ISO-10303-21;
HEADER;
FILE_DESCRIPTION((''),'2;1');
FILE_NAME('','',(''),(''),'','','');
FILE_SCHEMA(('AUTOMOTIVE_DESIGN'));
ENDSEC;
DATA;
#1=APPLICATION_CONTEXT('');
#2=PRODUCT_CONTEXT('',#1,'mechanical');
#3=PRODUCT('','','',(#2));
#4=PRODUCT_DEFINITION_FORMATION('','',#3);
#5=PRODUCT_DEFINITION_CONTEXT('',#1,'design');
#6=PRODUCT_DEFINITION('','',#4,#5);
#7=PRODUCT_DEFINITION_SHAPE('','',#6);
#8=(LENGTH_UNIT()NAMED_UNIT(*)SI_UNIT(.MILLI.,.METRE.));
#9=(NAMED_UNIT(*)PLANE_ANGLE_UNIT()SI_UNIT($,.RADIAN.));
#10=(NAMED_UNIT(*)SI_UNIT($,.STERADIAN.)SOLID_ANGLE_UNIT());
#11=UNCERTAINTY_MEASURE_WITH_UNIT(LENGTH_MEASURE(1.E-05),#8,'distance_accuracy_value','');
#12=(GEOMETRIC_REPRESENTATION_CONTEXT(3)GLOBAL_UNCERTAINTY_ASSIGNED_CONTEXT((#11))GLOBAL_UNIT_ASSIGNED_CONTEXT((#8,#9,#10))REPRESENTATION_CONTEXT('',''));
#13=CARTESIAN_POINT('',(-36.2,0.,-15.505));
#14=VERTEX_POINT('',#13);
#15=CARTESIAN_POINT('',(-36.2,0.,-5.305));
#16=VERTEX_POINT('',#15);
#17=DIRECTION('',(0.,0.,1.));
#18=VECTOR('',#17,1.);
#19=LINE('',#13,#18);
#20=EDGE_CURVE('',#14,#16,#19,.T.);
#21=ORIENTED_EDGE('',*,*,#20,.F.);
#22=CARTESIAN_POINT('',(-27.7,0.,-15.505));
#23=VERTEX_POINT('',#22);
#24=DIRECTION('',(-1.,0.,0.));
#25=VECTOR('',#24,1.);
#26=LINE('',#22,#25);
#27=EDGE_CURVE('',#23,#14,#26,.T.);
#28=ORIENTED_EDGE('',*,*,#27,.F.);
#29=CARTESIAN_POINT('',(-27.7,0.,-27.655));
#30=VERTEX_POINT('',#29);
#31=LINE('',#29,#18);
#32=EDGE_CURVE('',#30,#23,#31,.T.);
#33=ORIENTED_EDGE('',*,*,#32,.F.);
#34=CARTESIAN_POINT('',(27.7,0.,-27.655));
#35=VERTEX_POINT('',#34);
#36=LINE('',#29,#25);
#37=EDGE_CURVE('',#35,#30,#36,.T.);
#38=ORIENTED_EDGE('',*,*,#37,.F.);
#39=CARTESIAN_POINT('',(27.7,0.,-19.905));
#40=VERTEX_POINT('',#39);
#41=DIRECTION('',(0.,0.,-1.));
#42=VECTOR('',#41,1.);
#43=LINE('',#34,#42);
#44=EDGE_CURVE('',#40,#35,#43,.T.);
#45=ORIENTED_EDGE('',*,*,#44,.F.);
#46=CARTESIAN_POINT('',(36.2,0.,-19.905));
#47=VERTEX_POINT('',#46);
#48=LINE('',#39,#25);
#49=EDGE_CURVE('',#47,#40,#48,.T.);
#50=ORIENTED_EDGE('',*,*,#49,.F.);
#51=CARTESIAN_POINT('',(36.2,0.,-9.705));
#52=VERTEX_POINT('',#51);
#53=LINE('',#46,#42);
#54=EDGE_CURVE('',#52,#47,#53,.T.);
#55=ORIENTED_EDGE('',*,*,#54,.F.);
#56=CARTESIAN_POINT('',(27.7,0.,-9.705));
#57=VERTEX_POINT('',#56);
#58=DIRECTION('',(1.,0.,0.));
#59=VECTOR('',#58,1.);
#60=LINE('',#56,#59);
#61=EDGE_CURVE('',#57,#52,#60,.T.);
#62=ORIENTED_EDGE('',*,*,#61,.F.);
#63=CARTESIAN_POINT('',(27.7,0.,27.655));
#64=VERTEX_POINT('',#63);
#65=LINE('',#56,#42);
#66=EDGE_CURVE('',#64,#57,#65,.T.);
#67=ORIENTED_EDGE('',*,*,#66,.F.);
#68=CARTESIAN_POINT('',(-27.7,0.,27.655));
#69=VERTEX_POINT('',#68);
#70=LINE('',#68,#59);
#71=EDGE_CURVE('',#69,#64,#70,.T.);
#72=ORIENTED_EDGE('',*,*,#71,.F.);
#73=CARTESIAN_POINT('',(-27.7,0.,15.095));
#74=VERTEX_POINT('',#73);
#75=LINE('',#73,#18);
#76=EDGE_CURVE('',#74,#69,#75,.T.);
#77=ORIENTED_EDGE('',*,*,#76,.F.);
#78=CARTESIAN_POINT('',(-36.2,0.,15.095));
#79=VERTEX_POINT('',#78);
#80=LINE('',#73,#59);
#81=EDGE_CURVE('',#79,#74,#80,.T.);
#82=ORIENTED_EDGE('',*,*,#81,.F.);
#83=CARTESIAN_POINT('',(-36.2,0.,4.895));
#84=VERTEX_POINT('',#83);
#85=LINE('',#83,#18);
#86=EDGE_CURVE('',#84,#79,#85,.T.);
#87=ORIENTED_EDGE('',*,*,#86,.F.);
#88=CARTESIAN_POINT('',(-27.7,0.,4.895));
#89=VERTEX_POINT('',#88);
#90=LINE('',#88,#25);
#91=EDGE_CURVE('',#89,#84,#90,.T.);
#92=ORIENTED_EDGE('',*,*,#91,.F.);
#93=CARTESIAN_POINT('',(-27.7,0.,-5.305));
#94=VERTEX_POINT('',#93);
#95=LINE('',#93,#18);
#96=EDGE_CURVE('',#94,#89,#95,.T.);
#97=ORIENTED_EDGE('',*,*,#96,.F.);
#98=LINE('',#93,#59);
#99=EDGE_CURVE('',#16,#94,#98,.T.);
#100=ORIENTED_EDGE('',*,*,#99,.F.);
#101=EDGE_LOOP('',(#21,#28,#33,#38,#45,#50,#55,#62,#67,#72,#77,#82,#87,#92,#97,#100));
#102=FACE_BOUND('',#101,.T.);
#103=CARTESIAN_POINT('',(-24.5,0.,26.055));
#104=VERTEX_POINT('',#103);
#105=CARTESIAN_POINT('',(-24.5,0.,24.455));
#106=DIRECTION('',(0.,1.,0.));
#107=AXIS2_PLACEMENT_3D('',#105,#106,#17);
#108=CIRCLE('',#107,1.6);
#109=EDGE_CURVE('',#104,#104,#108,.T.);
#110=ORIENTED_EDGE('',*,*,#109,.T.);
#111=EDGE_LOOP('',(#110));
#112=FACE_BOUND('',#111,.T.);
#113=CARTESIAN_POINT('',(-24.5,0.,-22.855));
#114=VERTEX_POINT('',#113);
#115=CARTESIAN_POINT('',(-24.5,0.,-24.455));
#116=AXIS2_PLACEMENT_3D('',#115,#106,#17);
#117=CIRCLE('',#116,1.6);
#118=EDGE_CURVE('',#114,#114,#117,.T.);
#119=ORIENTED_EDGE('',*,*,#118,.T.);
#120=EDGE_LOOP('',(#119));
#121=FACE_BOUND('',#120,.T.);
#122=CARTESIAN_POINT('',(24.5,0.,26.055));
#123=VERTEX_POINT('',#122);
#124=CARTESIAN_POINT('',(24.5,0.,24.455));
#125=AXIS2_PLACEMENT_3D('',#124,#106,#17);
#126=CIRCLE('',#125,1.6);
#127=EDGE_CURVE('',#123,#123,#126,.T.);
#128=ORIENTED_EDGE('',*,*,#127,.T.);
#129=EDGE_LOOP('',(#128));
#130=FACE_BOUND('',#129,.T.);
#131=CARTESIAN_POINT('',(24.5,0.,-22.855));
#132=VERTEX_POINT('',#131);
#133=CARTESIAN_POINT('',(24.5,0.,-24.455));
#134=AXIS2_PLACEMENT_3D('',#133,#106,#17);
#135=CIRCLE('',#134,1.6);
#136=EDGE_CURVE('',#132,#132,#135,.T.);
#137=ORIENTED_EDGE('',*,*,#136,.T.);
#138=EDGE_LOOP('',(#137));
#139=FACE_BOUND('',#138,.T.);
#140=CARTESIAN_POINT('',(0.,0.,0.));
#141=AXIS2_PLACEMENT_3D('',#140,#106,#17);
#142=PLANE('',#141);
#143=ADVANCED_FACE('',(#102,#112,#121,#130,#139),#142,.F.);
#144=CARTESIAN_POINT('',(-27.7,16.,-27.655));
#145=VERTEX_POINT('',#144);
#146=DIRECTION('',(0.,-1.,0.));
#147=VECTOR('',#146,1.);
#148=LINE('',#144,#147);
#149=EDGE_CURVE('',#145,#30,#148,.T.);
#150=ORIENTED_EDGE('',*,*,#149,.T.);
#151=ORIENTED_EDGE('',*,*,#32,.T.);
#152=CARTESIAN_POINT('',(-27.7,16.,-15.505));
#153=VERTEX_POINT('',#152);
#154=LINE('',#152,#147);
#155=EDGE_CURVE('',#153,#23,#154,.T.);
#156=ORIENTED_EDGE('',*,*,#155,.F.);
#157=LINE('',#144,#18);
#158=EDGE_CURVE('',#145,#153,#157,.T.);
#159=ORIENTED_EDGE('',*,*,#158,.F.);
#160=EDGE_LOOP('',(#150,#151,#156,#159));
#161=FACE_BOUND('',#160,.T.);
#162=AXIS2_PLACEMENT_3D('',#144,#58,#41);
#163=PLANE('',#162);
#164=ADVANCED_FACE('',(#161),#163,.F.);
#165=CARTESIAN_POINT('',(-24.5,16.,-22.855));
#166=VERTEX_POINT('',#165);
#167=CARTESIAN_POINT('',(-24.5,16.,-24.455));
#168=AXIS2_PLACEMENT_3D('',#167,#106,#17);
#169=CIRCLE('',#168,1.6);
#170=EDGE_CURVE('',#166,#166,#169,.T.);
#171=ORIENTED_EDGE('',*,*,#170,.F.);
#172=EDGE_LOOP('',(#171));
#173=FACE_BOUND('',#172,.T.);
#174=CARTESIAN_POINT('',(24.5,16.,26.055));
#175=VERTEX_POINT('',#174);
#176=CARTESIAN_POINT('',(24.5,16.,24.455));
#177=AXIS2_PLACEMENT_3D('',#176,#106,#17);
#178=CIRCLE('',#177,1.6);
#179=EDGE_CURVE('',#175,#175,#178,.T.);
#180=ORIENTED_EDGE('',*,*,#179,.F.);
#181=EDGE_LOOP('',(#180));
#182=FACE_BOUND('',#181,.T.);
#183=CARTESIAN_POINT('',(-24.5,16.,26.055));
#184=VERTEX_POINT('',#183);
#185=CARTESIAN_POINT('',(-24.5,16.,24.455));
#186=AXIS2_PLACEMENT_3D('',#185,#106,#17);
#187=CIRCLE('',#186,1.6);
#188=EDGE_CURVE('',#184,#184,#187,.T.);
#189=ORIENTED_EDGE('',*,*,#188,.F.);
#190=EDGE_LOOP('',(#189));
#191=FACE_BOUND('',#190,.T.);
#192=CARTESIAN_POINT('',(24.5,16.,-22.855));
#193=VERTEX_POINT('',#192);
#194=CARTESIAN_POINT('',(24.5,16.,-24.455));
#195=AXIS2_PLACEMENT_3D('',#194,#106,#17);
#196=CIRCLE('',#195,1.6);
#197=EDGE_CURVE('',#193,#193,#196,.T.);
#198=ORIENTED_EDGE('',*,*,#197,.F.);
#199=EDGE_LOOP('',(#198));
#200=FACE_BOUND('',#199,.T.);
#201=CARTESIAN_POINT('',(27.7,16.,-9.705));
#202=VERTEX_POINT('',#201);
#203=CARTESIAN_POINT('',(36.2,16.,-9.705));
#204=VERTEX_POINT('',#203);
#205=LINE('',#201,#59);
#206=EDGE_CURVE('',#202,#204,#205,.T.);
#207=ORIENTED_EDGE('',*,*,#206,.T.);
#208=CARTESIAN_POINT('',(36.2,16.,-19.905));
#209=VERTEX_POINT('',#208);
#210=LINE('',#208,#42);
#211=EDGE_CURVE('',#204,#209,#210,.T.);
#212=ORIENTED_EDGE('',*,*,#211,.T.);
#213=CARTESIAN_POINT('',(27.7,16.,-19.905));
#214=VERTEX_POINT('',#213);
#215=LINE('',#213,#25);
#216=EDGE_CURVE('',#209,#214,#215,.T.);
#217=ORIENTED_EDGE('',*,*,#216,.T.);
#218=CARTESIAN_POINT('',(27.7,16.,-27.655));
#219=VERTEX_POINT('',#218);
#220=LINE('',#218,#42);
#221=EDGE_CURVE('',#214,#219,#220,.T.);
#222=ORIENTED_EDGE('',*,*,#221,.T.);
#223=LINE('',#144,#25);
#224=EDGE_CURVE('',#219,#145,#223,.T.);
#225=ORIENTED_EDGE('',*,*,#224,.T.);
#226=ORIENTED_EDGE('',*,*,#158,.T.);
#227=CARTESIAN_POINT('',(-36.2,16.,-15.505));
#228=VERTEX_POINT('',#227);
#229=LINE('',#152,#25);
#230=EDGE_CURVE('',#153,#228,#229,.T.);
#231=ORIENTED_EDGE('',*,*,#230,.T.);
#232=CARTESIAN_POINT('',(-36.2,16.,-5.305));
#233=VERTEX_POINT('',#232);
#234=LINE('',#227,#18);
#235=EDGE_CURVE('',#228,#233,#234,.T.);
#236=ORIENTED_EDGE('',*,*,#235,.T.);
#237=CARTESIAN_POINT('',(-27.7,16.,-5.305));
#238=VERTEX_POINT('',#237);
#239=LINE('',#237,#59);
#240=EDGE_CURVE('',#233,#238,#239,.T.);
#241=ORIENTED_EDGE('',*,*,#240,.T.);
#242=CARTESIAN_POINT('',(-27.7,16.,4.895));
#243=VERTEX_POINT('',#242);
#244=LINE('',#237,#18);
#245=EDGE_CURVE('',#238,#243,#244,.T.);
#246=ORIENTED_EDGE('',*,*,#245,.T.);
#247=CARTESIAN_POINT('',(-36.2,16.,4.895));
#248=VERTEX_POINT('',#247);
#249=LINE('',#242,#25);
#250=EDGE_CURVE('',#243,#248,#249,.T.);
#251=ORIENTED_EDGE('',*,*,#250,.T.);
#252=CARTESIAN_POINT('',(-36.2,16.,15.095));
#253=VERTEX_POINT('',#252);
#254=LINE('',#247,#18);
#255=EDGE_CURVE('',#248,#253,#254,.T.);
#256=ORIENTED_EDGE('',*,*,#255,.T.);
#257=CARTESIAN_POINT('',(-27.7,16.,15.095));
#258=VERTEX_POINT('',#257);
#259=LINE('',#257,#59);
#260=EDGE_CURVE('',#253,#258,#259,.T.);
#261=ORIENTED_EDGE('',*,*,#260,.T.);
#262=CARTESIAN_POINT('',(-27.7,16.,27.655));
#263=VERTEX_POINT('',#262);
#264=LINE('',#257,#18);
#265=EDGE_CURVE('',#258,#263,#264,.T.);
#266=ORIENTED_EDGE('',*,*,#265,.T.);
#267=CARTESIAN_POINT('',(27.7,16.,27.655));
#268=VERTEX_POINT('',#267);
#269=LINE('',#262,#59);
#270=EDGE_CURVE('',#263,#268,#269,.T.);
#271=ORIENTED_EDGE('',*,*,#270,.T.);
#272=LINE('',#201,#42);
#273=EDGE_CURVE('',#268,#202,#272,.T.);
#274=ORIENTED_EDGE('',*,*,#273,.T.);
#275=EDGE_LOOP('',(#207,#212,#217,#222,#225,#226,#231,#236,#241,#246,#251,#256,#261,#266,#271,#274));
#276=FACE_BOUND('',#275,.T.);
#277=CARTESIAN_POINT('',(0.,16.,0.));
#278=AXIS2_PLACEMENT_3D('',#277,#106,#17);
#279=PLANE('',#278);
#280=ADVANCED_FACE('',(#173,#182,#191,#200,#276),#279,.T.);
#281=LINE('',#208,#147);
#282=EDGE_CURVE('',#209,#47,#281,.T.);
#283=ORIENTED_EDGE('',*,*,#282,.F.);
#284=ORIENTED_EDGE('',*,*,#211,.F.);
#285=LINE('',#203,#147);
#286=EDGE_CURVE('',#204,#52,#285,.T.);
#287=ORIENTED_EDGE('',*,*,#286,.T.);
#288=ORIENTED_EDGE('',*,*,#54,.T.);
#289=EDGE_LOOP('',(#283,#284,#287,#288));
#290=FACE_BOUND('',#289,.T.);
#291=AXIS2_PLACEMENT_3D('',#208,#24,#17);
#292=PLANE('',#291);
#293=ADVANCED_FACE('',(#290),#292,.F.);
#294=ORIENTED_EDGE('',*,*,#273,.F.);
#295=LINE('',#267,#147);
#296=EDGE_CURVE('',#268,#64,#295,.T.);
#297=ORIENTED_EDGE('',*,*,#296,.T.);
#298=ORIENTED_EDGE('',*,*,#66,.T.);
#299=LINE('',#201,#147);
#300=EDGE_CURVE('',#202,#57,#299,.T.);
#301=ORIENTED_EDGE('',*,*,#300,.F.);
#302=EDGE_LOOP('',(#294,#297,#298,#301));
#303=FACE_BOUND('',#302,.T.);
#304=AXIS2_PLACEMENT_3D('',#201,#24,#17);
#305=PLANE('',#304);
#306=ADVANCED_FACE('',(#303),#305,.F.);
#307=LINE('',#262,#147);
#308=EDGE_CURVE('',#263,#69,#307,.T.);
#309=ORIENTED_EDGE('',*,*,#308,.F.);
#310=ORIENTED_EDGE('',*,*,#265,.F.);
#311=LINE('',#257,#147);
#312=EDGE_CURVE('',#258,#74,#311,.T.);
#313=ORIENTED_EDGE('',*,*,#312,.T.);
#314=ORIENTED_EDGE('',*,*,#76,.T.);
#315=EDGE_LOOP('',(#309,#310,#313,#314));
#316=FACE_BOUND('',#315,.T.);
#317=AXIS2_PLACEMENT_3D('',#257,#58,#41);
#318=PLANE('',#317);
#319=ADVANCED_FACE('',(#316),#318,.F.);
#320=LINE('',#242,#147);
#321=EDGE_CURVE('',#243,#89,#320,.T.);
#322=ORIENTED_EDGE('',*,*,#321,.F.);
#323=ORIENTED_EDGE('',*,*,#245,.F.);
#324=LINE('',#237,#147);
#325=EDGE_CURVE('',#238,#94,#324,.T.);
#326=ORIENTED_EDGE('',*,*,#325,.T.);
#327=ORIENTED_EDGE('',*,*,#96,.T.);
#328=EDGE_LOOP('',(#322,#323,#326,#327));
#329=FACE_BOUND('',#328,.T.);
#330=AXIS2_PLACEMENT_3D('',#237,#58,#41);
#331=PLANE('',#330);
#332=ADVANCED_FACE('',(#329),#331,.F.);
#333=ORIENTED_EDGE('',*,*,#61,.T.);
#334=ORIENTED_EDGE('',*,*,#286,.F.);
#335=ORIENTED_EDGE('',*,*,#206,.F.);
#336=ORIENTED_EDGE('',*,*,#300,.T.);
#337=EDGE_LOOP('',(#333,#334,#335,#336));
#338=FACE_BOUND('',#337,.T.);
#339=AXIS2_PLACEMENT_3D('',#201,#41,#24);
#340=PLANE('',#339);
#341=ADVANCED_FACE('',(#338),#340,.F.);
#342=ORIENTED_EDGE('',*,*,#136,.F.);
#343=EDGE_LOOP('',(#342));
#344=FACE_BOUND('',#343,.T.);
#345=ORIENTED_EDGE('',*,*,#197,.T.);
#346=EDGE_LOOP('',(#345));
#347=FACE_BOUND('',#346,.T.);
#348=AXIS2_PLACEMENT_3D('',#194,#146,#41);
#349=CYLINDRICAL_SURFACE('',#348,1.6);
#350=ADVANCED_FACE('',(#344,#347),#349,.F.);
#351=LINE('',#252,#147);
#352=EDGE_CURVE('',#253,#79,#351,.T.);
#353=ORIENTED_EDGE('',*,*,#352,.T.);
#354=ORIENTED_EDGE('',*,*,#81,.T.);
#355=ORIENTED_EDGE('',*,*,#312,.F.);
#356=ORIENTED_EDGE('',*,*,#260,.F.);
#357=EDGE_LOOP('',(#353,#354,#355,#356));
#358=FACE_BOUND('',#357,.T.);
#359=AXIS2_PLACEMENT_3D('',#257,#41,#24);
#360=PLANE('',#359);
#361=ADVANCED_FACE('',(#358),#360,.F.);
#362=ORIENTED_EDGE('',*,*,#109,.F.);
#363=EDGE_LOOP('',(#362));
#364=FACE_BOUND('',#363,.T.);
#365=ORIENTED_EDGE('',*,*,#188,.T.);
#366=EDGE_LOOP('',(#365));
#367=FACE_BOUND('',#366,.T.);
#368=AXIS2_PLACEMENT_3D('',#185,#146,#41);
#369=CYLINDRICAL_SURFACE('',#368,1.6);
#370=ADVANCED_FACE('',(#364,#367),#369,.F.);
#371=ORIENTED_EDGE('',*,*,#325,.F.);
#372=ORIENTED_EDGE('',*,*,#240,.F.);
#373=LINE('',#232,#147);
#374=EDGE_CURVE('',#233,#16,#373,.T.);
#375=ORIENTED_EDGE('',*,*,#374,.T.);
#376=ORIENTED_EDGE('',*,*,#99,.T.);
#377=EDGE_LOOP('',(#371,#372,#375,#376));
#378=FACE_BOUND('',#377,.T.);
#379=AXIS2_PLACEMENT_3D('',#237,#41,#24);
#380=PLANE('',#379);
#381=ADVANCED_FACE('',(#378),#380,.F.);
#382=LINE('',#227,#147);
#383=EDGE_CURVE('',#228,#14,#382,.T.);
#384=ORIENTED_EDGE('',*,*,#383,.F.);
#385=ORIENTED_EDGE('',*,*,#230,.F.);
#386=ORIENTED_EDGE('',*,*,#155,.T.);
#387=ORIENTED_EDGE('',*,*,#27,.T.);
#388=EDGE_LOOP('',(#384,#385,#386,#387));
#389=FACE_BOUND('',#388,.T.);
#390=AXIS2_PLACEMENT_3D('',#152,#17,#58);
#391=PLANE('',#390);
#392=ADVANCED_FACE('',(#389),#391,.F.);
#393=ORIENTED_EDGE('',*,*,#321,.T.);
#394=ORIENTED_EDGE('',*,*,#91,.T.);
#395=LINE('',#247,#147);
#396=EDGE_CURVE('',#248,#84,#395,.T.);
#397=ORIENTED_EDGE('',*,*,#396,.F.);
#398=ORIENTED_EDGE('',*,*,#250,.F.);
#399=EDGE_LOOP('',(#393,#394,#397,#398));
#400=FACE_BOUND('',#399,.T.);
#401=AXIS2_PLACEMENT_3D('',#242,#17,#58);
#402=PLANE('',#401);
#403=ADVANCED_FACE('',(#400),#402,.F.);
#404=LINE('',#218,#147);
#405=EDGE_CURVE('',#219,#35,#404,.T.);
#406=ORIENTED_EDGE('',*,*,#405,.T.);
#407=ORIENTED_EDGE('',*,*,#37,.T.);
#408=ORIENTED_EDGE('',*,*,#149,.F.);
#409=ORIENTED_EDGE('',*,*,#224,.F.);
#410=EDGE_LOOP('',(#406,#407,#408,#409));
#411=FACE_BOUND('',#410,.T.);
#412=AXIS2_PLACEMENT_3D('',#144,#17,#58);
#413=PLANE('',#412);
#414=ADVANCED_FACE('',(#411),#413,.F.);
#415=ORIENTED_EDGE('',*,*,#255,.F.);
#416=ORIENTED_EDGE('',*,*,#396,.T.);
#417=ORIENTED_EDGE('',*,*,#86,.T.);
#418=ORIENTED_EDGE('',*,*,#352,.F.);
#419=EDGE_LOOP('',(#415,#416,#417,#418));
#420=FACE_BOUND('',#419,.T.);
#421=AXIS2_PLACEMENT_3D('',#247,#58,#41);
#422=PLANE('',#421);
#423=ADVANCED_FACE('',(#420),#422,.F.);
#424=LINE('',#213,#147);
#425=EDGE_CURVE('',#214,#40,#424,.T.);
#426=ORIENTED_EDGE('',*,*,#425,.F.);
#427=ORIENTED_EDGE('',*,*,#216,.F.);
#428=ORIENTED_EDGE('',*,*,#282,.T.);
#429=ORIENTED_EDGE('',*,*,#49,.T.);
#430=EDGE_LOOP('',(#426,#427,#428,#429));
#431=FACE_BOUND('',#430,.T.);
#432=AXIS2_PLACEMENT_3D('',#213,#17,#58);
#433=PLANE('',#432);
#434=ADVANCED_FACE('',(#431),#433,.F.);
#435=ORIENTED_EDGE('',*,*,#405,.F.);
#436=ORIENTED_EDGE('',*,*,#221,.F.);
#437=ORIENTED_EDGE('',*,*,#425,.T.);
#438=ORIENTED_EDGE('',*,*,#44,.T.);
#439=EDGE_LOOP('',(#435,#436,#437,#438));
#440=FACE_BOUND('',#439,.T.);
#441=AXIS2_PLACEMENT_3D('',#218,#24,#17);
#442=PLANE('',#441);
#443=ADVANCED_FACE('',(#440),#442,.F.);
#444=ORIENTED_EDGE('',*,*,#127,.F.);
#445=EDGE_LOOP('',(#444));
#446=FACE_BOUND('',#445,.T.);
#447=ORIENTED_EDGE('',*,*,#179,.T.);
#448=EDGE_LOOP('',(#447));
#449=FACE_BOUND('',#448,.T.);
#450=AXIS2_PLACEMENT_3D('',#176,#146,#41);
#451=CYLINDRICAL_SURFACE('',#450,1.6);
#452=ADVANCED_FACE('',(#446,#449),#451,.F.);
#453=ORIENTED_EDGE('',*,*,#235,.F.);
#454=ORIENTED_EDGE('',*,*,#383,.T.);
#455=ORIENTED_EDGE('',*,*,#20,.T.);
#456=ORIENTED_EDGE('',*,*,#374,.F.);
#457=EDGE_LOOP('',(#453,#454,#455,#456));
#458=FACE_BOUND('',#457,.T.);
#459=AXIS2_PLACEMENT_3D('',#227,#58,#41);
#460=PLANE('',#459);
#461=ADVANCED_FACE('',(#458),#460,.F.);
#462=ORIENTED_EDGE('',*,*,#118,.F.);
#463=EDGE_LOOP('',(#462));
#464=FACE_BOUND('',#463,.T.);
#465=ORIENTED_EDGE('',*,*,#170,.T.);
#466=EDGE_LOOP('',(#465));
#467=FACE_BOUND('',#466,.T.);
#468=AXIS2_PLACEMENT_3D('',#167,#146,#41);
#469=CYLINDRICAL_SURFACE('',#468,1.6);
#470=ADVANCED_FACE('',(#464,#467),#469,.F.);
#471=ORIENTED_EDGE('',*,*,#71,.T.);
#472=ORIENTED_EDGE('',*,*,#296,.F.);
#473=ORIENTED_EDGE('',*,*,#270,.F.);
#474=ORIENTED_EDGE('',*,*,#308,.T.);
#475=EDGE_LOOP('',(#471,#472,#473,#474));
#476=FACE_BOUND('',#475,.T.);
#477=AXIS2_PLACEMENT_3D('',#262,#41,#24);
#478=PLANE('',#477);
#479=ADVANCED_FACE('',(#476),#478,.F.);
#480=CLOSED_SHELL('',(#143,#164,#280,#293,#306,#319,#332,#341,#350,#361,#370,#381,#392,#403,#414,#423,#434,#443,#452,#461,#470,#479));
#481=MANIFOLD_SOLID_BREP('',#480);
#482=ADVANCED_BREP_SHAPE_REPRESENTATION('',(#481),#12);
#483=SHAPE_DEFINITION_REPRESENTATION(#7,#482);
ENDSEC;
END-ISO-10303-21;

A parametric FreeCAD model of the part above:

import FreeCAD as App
import Part
import Sketcher

V = App.Vector


def add_polygon(sketch, points):
    """Adds a closed chain of lines whose ends are joined by coincident constraints."""
    first, n = sketch.GeometryCount, len(points)
    for a, b in zip(points, points[1:] + points[:1]):
        sketch.addGeometry(Part.LineSegment(App.Vector(*a, 0), App.Vector(*b, 0)), False)
    for i in range(n):
        sketch.addConstraint(Sketcher.Constraint("Coincident", first + i, 2, first + (i + 1) % n, 1))

doc = App.newDocument("Part")
body = doc.addObject("PartDesign::Body", "Body")

sketch1 = body.newObject("Sketcher::SketchObject", "Sketch")
sketch1.AttachmentSupport = (doc.getObject("XZ_Plane"), [""])
sketch1.MapMode = "FlatFace"
add_polygon(sketch1, [(27.7, -27.655), (-27.7, -27.655), (-27.7, -15.505), (-36.2, -15.505), (-36.2, -5.305), (-27.7, -5.305), (-27.7, 4.895), (-36.2, 4.895), (-36.2, 15.095), (-27.7, 15.095), (-27.7, 27.655), (27.7, 27.655), (27.7, -9.705), (36.2, -9.705), (36.2, -19.905), (27.7, -19.905)])
sketch1.addGeometry(Part.Circle(V(24.5, 24.455, 0), V(0, 0, 1), 1.6), False)
sketch1.addGeometry(Part.Circle(V(-24.5, 24.455, 0), V(0, 0, 1), 1.6), False)
sketch1.addGeometry(Part.Circle(V(24.5, -24.455, 0), V(0, 0, 1), 1.6), False)
sketch1.addGeometry(Part.Circle(V(-24.5, -24.455, 0), V(0, 0, 1), 1.6), False)
sketch1.addConstraint(Sketcher.Constraint("Horizontal", 0))
sketch1.addConstraint(Sketcher.Constraint("Vertical", 1))
sketch1.addConstraint(Sketcher.Constraint("Horizontal", 2))
sketch1.addConstraint(Sketcher.Constraint("Vertical", 3))
sketch1.addConstraint(Sketcher.Constraint("Horizontal", 4))
sketch1.addConstraint(Sketcher.Constraint("Vertical", 5))
sketch1.addConstraint(Sketcher.Constraint("Horizontal", 6))
sketch1.addConstraint(Sketcher.Constraint("Vertical", 7))
sketch1.addConstraint(Sketcher.Constraint("Horizontal", 8))
sketch1.addConstraint(Sketcher.Constraint("Vertical", 9))
sketch1.addConstraint(Sketcher.Constraint("Horizontal", 10))
sketch1.addConstraint(Sketcher.Constraint("Vertical", 11))
sketch1.addConstraint(Sketcher.Constraint("Horizontal", 12))
sketch1.addConstraint(Sketcher.Constraint("Vertical", 13))
sketch1.addConstraint(Sketcher.Constraint("Horizontal", 14))
sketch1.addConstraint(Sketcher.Constraint("Vertical", 15))
sketch1.addConstraint(Sketcher.Constraint("Equal", 16, 17))
sketch1.addConstraint(Sketcher.Constraint("Equal", 17, 18))
sketch1.addConstraint(Sketcher.Constraint("Equal", 18, 19))
sketch1.addConstraint(Sketcher.Constraint("Symmetric", 17, 3, 18, 3, -1, 1))
sketch1.addConstraint(Sketcher.Constraint("Symmetric", 16, 3, 19, 3, -1, 1))
sketch1.addConstraint(Sketcher.Constraint("Symmetric", 0, 2, 10, 2, -1, 1))
sketch1.addConstraint(Sketcher.Constraint("Symmetric", 16, 3, 17, 3, -2))
sketch1.addConstraint(Sketcher.Constraint("Vertical", 1, 2, 4, 2))
sketch1.addConstraint(Sketcher.Constraint("Vertical", 3, 2, 6, 2))
sketch1.addConstraint(Sketcher.Constraint("Vertical", 5, 2, 8, 2))
sketch1.addConstraint(Sketcher.Constraint("Vertical", 11, 2, 14, 2))
sketch1.addConstraint(Sketcher.Constraint("Equal", 8, 12))
sketch1.addConstraint(Sketcher.Constraint("Equal", 3, 5))
sketch1.addConstraint(Sketcher.Constraint("Equal", 5, 7))
sketch1.addConstraint(Sketcher.Constraint("Equal", 7, 13))
sketch1.addConstraint(Sketcher.Constraint("Diameter", 16, 3.2))
sketch1.addConstraint(Sketcher.Constraint("DistanceX", 0, 2, 0, 1, 55.4))
sketch1.addConstraint(Sketcher.Constraint("DistanceX", 2, 2, 2, 1, 8.5))
sketch1.addConstraint(Sketcher.Constraint("DistanceY", 3, 1, 3, 2, 10.2))
sketch1.addConstraint(Sketcher.Constraint("DistanceX", 17, 3, 16, 3, 49.0))
sketch1.addConstraint(Sketcher.Constraint("DistanceY", 1, 1, 1, 2, 12.15))
sketch1.addConstraint(Sketcher.Constraint("DistanceY", 9, 1, 9, 2, 12.56))
sketch1.addConstraint(Sketcher.Constraint("DistanceY", 11, 2, 11, 1, 37.36))
sketch1.addConstraint(Sketcher.Constraint("DistanceY", 0, 2, 19, 3, 3.2))
pad1 = body.newObject("PartDesign::Pad", "Pad")
pad1.Profile = sketch1
pad1.Length = 16
pad1.Reversed = True

doc.recompute()
